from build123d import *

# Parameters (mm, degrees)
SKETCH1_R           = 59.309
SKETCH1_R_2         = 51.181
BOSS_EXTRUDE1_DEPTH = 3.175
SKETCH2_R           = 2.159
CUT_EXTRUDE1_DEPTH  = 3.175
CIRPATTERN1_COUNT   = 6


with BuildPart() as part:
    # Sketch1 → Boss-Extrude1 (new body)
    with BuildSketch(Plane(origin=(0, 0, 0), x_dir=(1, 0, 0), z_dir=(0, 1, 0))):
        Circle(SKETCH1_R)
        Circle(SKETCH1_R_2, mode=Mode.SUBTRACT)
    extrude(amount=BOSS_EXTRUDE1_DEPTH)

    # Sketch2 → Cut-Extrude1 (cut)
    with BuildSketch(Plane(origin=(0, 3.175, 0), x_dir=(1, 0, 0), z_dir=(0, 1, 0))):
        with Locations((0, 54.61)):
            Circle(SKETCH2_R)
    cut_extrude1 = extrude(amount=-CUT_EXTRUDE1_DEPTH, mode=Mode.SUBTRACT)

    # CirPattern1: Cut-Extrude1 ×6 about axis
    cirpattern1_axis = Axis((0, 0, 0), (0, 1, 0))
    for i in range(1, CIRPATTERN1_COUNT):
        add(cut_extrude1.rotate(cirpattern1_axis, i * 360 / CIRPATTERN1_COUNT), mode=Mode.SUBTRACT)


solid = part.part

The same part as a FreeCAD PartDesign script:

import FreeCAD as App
import Part
import Sketcher
from FreeCAD import Vector
Q = App.Units.Quantity

doc = App.newDocument("Part")
body = doc.addObject("PartDesign::Body", "Body")

# Sketch on XZ plane
sketch1 = body.newObject("Sketcher::SketchObject", "Sketch")
sketch1.AttachmentSupport = (doc.getObject("XZ_Plane"), [""])
sketch1.MapMode = "FlatFace"
sketch1.addGeometry([
    Part.Circle(Vector(0, 0, 0), Vector(0, 0, 1), 59),
    Part.Circle(Vector(0, 0, 0), Vector(0, 0, 1), 51),
], False)
sketch1.addConstraint([
    Sketcher.Constraint("Coincident", 0, 3, -1, 1),
    Sketcher.Constraint("Coincident", 1, 3, -1, 1),
    Sketcher.Constraint("Diameter", 0, Q("4.67 in")),
    Sketcher.Constraint("Diameter", 1, Q("4.03 in")),
])
pad1 = body.newObject("PartDesign::Pad", "Pad")
pad1.Profile = sketch1
pad1.Length = Q("0.125 in")
pad1.Reversed = True

# Sketch on XZ plane
sketch2 = body.newObject("Sketcher::SketchObject", "Sketch001")
sketch2.AttachmentSupport = (doc.getObject("XZ_Plane"), [""])
sketch2.MapMode = "FlatFace"
sketch2.AttachmentOffset = App.Placement(Vector(0, 0, -0.125 * 25.4), App.Rotation())
sketch2.addGeometry(Part.Circle(Vector(0, -54.6, 0), Vector(0, 0, 1), 2.2), False)
sketch2.addConstraint([
    Sketcher.Constraint("PointOnObject", 0, 3, -2),
    Sketcher.Constraint("Diameter", 0, Q("0.17 in")),
    Sketcher.Constraint("DistanceY", 0, 3, -1, 1, Q("2.15 in")),
])
pocket1 = body.newObject("PartDesign::Pocket", "Pocket")
pocket1.Profile = sketch2
pocket1.Length = Q("0.125 in")
pocket1.Reversed = True
doc.recompute()

polarpattern = body.newObject("PartDesign::PolarPattern", "PolarPattern")
polarpattern.Originals = [pocket1]
polarpattern.Axis = (doc.getObject("Y_Axis"), [""])
polarpattern.Angle = 360
polarpattern.Occurrences = 6
body.Tip = polarpattern

doc.recompute()
